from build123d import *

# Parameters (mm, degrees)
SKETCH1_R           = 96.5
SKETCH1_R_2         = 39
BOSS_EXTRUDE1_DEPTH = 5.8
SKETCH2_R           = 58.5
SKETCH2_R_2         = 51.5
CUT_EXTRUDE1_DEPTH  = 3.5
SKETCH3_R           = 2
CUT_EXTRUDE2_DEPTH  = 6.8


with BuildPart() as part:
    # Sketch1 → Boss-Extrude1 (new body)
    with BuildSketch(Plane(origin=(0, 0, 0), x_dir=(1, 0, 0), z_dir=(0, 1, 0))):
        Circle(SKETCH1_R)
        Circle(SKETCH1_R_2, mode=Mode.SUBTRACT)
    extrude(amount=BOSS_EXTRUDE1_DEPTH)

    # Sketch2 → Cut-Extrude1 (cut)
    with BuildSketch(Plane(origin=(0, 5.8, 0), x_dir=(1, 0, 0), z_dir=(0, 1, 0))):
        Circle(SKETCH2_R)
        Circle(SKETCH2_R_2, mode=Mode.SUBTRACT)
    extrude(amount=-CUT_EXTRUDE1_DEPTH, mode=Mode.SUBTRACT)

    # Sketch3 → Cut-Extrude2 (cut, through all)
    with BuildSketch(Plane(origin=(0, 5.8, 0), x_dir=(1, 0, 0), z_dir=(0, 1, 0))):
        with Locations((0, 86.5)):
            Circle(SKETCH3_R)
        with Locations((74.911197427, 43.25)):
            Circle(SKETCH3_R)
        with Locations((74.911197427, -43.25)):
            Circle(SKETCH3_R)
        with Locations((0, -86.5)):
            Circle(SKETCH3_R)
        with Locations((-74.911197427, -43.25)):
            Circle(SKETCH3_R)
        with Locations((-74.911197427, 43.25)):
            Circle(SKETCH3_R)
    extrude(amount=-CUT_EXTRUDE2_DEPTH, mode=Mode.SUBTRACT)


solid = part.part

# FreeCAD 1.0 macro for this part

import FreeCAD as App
import Part
import Sketcher
from FreeCAD import Vector
Q = App.Units.Quantity

doc = App.newDocument("Part")
body = doc.addObject("PartDesign::Body", "Body")

sketch1 = body.newObject("Sketcher::SketchObject", "Sketch")
sketch1.AttachmentSupport = (doc.getObject("XZ_Plane"), [""])
sketch1.MapMode = "FlatFace"
sketch1.addGeometry([
    Part.Circle(Vector(0, 0, 0), Vector(0, 0, 1), 96),
    Part.Circle(Vector(0, 0, 0), Vector(0, 0, 1), 39),
], False)
sketch1.addConstraint([
    Sketcher.Constraint("Coincident", 0, 3, -1, 1),
    Sketcher.Constraint("Coincident", 1, 3, -1, 1),
    Sketcher.Constraint("Diameter", 0, Q("193 mm")),
    Sketcher.Constraint("Diameter", 1, Q("78 mm")),
])
pad1 = body.newObject("PartDesign::Pad", "Pad")
pad1.Profile = sketch1
pad1.Length = 5.8
pad1.Reversed = True

sketch2 = body.newObject("Sketcher::SketchObject", "Sketch001")
sketch2.AttachmentSupport = (doc.getObject("XZ_Plane"), [""])
sketch2.MapMode = "FlatFace"
sketch2.AttachmentOffset = App.Placement(Vector(0, 0, -5.8), App.Rotation())
sketch2.addGeometry([
    Part.Circle(Vector(0, 0, 0), Vector(0, 0, 1), 58),
    Part.Circle(Vector(0, 0, 0), Vector(0, 0, 1), 52),
], False)
sketch2.addConstraint([
    Sketcher.Constraint("Coincident", 0, 3, -1, 1),
    Sketcher.Constraint("Coincident", 1, 3, -1, 1),
    Sketcher.Constraint("Diameter", 0, Q("117 mm")),
    Sketcher.Constraint("Diameter", 1, Q("103 mm")),
])
pocket1 = body.newObject("PartDesign::Pocket", "Pocket")
pocket1.Profile = sketch2
pocket1.Length = 3.5
pocket1.Reversed = True

sketch3 = body.newObject("Sketcher::SketchObject", "Sketch002")
sketch3.AttachmentSupport = (doc.getObject("XZ_Plane"), [""])
sketch3.MapMode = "FlatFace"
sketch3.AttachmentOffset = App.Placement(Vector(0, 0, -5.8), App.Rotation())
sketch3.addGeometry([
    Part.Circle(Vector(0, -86.5, 0), Vector(0, 0, 1), 2),
    Part.Circle(Vector(74.9, -43.2, 0), Vector(0, 0, 1), 2),
    Part.Circle(Vector(74.9, 43.2, 0), Vector(0, 0, 1), 2),
    Part.Circle(Vector(0, 86.5, 0), Vector(0, 0, 1), 2),
    Part.Circle(Vector(-74.9, 43.2, 0), Vector(0, 0, 1), 2),
    Part.Circle(Vector(-74.9, -43.2, 0), Vector(0, 0, 1), 2),
], False)
sketch3.addConstraint([
    Sketcher.Constraint("Equal", 0, 1),
    Sketcher.Constraint("Equal", 1, 2),
    Sketcher.Constraint("Equal", 2, 3),
    Sketcher.Constraint("Equal", 3, 4),
    Sketcher.Constraint("Equal", 4, 5),
    Sketcher.Constraint("Symmetric", 0, 3, 3, 3, -1, 1),
    Sketcher.Constraint("Symmetric", 1, 3, 4, 3, -1, 1),
    Sketcher.Constraint("Symmetric", 2, 3, 5, 3, -1, 1),
    Sketcher.Constraint("Symmetric", 2, 3, 4, 3, -2),
    Sketcher.Constraint("PointOnObject", 0, 3, -2),
    Sketcher.Constraint("Diameter", 0, Q("4 mm")),
    Sketcher.Constraint("DistanceY", 0, 3, 3, 3, Q("173 mm")),
    Sketcher.Constraint("DistanceY", 1, 3, 2, 3, Q("86.5 mm")),
    Sketcher.Constraint("DistanceX", -1, 1, 1, 3, Q("74.911197 mm")),
])
pocket2 = body.newObject("PartDesign::Pocket", "Pocket001")
pocket2.Profile = sketch3
pocket2.Type = "ThroughAll"
pocket2.Reversed = True

doc.recompute()
